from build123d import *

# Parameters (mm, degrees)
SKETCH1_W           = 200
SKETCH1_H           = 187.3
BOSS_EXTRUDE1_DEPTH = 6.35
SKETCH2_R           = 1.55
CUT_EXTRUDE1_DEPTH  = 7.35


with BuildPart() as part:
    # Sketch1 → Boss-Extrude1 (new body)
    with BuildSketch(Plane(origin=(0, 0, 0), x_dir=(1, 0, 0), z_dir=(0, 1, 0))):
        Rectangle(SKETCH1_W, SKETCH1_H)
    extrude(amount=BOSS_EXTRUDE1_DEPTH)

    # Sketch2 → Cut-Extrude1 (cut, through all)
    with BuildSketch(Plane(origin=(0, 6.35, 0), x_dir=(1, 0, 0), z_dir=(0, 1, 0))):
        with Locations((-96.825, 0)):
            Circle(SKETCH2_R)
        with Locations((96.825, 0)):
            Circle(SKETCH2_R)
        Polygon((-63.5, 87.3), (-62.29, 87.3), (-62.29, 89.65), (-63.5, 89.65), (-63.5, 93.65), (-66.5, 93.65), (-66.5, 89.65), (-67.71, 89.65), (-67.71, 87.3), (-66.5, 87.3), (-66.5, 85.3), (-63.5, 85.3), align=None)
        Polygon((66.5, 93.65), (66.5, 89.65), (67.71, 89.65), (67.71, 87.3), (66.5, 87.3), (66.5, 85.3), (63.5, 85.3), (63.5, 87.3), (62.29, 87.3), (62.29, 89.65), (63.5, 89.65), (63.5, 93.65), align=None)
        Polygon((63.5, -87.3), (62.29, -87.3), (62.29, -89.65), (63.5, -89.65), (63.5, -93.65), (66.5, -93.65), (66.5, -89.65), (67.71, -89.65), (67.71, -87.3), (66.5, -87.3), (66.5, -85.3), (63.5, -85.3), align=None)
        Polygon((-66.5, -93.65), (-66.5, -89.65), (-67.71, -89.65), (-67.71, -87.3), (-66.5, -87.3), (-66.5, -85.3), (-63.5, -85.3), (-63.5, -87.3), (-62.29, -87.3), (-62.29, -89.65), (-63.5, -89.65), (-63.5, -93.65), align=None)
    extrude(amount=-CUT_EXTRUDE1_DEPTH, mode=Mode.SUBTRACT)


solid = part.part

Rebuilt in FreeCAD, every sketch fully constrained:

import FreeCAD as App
import Part
import Sketcher

V = App.Vector

doc = App.newDocument("Part")
body = doc.addObject("PartDesign::Body", "Body")

# Sketch on XZ plane
sketch1 = doc.addObject("Sketcher::SketchObject", "Sketch")
body.addObject(sketch1)
sketch1.AttachmentSupport = (doc.XZ_Plane, [""])
sketch1.MapMode = "FlatFace"
sketch1.addGeometry(Part.LineSegment(V(-100, -93.65, 0), V(-100, 93.65, 0)), False)
sketch1.addGeometry(Part.LineSegment(V(-100, 93.65, 0), V(100, 93.65, 0)), False)
sketch1.addGeometry(Part.LineSegment(V(100, 93.65, 0), V(100, -93.65, 0)), False)
sketch1.addGeometry(Part.LineSegment(V(100, -93.65, 0), V(-100, -93.65, 0)), False)
sketch1.addConstraint(Sketcher.Constraint("Coincident", 0, 2, 1, 1))
sketch1.addConstraint(Sketcher.Constraint("Coincident", 1, 2, 2, 1))
sketch1.addConstraint(Sketcher.Constraint("Coincident", 2, 2, 3, 1))
sketch1.addConstraint(Sketcher.Constraint("Coincident", 3, 2, 0, 1))
sketch1.addConstraint(Sketcher.Constraint("Vertical", 0))
sketch1.addConstraint(Sketcher.Constraint("Horizontal", 1))
sketch1.addConstraint(Sketcher.Constraint("Vertical", 2))
sketch1.addConstraint(Sketcher.Constraint("Horizontal", 3))
sketch1.addConstraint(Sketcher.Constraint("Symmetric", 0, 2, 2, 2, -1, 1))
sketch1.addConstraint(Sketcher.Constraint("DistanceX", 1, 1, 1, 2, 200.0))
sketch1.addConstraint(Sketcher.Constraint("DistanceY", 0, 1, 0, 2, 187.3))
pad1 = doc.addObject("PartDesign::Pad", "Pad")
body.addObject(pad1)
pad1.Profile = sketch1
pad1.Length = 6.35
pad1.Reversed = True

# Sketch on XZ plane
sketch2 = doc.addObject("Sketcher::SketchObject", "Sketch001")
body.addObject(sketch2)
sketch2.AttachmentSupport = (doc.XZ_Plane, [""])
sketch2.MapMode = "FlatFace"
sketch2.AttachmentOffset = App.Placement(V(0, 0, -6.35), App.Rotation())
sketch2.addGeometry(Part.Circle(V(-96.825, 0, 0), V(0, 0, 1), 1.55), False)
sketch2.addGeometry(Part.Circle(V(96.825, 0, 0), V(0, 0, 1), 1.55), False)
sketch2.addGeometry(Part.LineSegment(V(-63.5, -87.3, 0), V(-62.29, -87.3, 0)), False)
sketch2.addGeometry(Part.LineSegment(V(-62.29, -87.3, 0), V(-62.29, -89.65, 0)), False)
sketch2.addGeometry(Part.LineSegment(V(-62.29, -89.65, 0), V(-63.5, -89.65, 0)), False)
sketch2.addGeometry(Part.LineSegment(V(-63.5, -89.65, 0), V(-63.5, -93.65, 0)), False)
sketch2.addGeometry(Part.LineSegment(V(-63.5, -93.65, 0), V(-66.5, -93.65, 0)), False)
sketch2.addGeometry(Part.LineSegment(V(-66.5, -93.65, 0), V(-66.5, -89.65, 0)), False)
sketch2.addGeometry(Part.LineSegment(V(-66.5, -89.65, 0), V(-67.71, -89.65, 0)), False)
sketch2.addGeometry(Part.LineSegment(V(-67.71, -89.65, 0), V(-67.71, -87.3, 0)), False)
sketch2.addGeometry(Part.LineSegment(V(-67.71, -87.3, 0), V(-66.5, -87.3, 0)), False)
sketch2.addGeometry(Part.LineSegment(V(-66.5, -87.3, 0), V(-66.5, -85.3, 0)), False)
sketch2.addGeometry(Part.LineSegment(V(-66.5, -85.3, 0), V(-63.5, -85.3, 0)), False)
sketch2.addGeometry(Part.LineSegment(V(-63.5, -85.3, 0), V(-63.5, -87.3, 0)), False)
sketch2.addGeometry(Part.LineSegment(V(66.5, -89.65, 0), V(66.5, -93.65, 0)), False)
sketch2.addGeometry(Part.LineSegment(V(66.5, -93.65, 0), V(63.5, -93.65, 0)), False)
sketch2.addGeometry(Part.LineSegment(V(63.5, -93.65, 0), V(63.5, -89.65, 0)), False)
sketch2.addGeometry(Part.LineSegment(V(63.5, -89.65, 0), V(62.29, -89.65, 0)), False)
sketch2.addGeometry(Part.LineSegment(V(62.29, -89.65, 0), V(62.29, -87.3, 0)), False)
sketch2.addGeometry(Part.LineSegment(V(62.29, -87.3, 0), V(63.5, -87.3, 0)), False)
sketch2.addGeometry(Part.LineSegment(V(63.5, -87.3, 0), V(63.5, -85.3, 0)), False)
sketch2.addGeometry(Part.LineSegment(V(63.5, -85.3, 0), V(66.5, -85.3, 0)), False)
sketch2.addGeometry(Part.LineSegment(V(66.5, -85.3, 0), V(66.5, -87.3, 0)), False)
sketch2.addGeometry(Part.LineSegment(V(66.5, -87.3, 0), V(67.71, -87.3, 0)), False)
sketch2.addGeometry(Part.LineSegment(V(67.71, -87.3, 0), V(67.71, -89.65, 0)), False)
sketch2.addGeometry(Part.LineSegment(V(67.71, -89.65, 0), V(66.5, -89.65, 0)), False)
sketch2.addGeometry(Part.LineSegment(V(63.5, 87.3, 0), V(62.29, 87.3, 0)), False)
sketch2.addGeometry(Part.LineSegment(V(62.29, 87.3, 0), V(62.29, 89.65, 0)), False)
sketch2.addGeometry(Part.LineSegment(V(62.29, 89.65, 0), V(63.5, 89.65, 0)), False)
sketch2.addGeometry(Part.LineSegment(V(63.5, 89.65, 0), V(63.5, 93.65, 0)), False)
sketch2.addGeometry(Part.LineSegment(V(63.5, 93.65, 0), V(66.5, 93.65, 0)), False)
sketch2.addGeometry(Part.LineSegment(V(66.5, 93.65, 0), V(66.5, 89.65, 0)), False)
sketch2.addGeometry(Part.LineSegment(V(66.5, 89.65, 0), V(67.71, 89.65, 0)), False)
sketch2.addGeometry(Part.LineSegment(V(67.71, 89.65, 0), V(67.71, 87.3, 0)), False)
sketch2.addGeometry(Part.LineSegment(V(67.71, 87.3, 0), V(66.5, 87.3, 0)), False)
sketch2.addGeometry(Part.LineSegment(V(66.5, 87.3, 0), V(66.5, 85.3, 0)), False)
sketch2.addGeometry(Part.LineSegment(V(66.5, 85.3, 0), V(63.5, 85.3, 0)), False)
sketch2.addGeometry(Part.LineSegment(V(63.5, 85.3, 0), V(63.5, 87.3, 0)), False)
sketch2.addGeometry(Part.LineSegment(V(-66.5, 89.65, 0), V(-66.5, 93.65, 0)), False)
sketch2.addGeometry(Part.LineSegment(V(-66.5, 93.65, 0), V(-63.5, 93.65, 0)), False)
sketch2.addGeometry(Part.LineSegment(V(-63.5, 93.65, 0), V(-63.5, 89.65, 0)), False)
sketch2.addGeometry(Part.LineSegment(V(-63.5, 89.65, 0), V(-62.29, 89.65, 0)), False)
sketch2.addGeometry(Part.LineSegment(V(-62.29, 89.65, 0), V(-62.29, 87.3, 0)), False)
sketch2.addGeometry(Part.LineSegment(V(-62.29, 87.3, 0), V(-63.5, 87.3, 0)), False)
sketch2.addGeometry(Part.LineSegment(V(-63.5, 87.3, 0), V(-63.5, 85.3, 0)), False)
sketch2.addGeometry(Part.LineSegment(V(-63.5, 85.3, 0), V(-66.5, 85.3, 0)), False)
sketch2.addGeometry(Part.LineSegment(V(-66.5, 85.3, 0), V(-66.5, 87.3, 0)), False)
sketch2.addGeometry(Part.LineSegment(V(-66.5, 87.3, 0), V(-67.71, 87.3, 0)), False)
sketch2.addGeometry(Part.LineSegment(V(-67.71, 87.3, 0), V(-67.71, 89.65, 0)), False)
sketch2.addGeometry(Part.LineSegment(V(-67.71, 89.65, 0), V(-66.5, 89.65, 0)), False)
sketch2.addConstraint(Sketcher.Constraint("Coincident", 2, 2, 3, 1))
sketch2.addConstraint(Sketcher.Constraint("Coincident", 3, 2, 4, 1))
sketch2.addConstraint(Sketcher.Constraint("Coincident", 4, 2, 5, 1))
sketch2.addConstraint(Sketcher.Constraint("Coincident", 5, 2, 6, 1))
sketch2.addConstraint(Sketcher.Constraint("Coincident", 6, 2, 7, 1))
sketch2.addConstraint(Sketcher.Constraint("Coincident", 7, 2, 8, 1))
sketch2.addConstraint(Sketcher.Constraint("Coincident", 8, 2, 9, 1))
sketch2.addConstraint(Sketcher.Constraint("Coincident", 9, 2, 10, 1))
sketch2.addConstraint(Sketcher.Constraint("Coincident", 10, 2, 11, 1))
sketch2.addConstraint(Sketcher.Constraint("Coincident", 11, 2, 12, 1))
sketch2.addConstraint(Sketcher.Constraint("Coincident", 12, 2, 13, 1))
sketch2.addConstraint(Sketcher.Constraint("Coincident", 13, 2, 2, 1))
sketch2.addConstraint(Sketcher.Constraint("Coincident", 14, 2, 15, 1))
sketch2.addConstraint(Sketcher.Constraint("Coincident", 15, 2, 16, 1))
sketch2.addConstraint(Sketcher.Constraint("Coincident", 16, 2, 17, 1))
sketch2.addConstraint(Sketcher.Constraint("Coincident", 17, 2, 18, 1))
sketch2.addConstraint(Sketcher.Constraint("Coincident", 18, 2, 19, 1))
sketch2.addConstraint(Sketcher.Constraint("Coincident", 19, 2, 20, 1))
sketch2.addConstraint(Sketcher.Constraint("Coincident", 20, 2, 21, 1))
sketch2.addConstraint(Sketcher.Constraint("Coincident", 21, 2, 22, 1))
sketch2.addConstraint(Sketcher.Constraint("Coincident", 22, 2, 23, 1))
sketch2.addConstraint(Sketcher.Constraint("Coincident", 23, 2, 24, 1))
sketch2.addConstraint(Sketcher.Constraint("Coincident", 24, 2, 25, 1))
sketch2.addConstraint(Sketcher.Constraint("Coincident", 25, 2, 14, 1))
sketch2.addConstraint(Sketcher.Constraint("Coincident", 26, 2, 27, 1))
sketch2.addConstraint(Sketcher.Constraint("Coincident", 27, 2, 28, 1))
sketch2.addConstraint(Sketcher.Constraint("Coincident", 28, 2, 29, 1))
sketch2.addConstraint(Sketcher.Constraint("Coincident", 29, 2, 30, 1))
sketch2.addConstraint(Sketcher.Constraint("Coincident", 30, 2, 31, 1))
sketch2.addConstraint(Sketcher.Constraint("Coincident", 31, 2, 32, 1))
sketch2.addConstraint(Sketcher.Constraint("Coincident", 32, 2, 33, 1))
sketch2.addConstraint(Sketcher.Constraint("Coincident", 33, 2, 34, 1))
sketch2.addConstraint(Sketcher.Constraint("Coincident", 34, 2, 35, 1))
sketch2.addConstraint(Sketcher.Constraint("Coincident", 35, 2, 36, 1))
sketch2.addConstraint(Sketcher.Constraint("Coincident", 36, 2, 37, 1))
sketch2.addConstraint(Sketcher.Constraint("Coincident", 37, 2, 26, 1))
sketch2.addConstraint(Sketcher.Constraint("Coincident", 38, 2, 39, 1))
sketch2.addConstraint(Sketcher.Constraint("Coincident", 39, 2, 40, 1))
sketch2.addConstraint(Sketcher.Constraint("Coincident", 40, 2, 41, 1))
sketch2.addConstraint(Sketcher.Constraint("Coincident", 41, 2, 42, 1))
sketch2.addConstraint(Sketcher.Constraint("Coincident", 42, 2, 43, 1))
sketch2.addConstraint(Sketcher.Constraint("Coincident", 43, 2, 44, 1))
sketch2.addConstraint(Sketcher.Constraint("Coincident", 44, 2, 45, 1))
sketch2.addConstraint(Sketcher.Constraint("Coincident", 45, 2, 46, 1))
sketch2.addConstraint(Sketcher.Constraint("Coincident", 46, 2, 47, 1))
sketch2.addConstraint(Sketcher.Constraint("Coincident", 47, 2, 48, 1))
sketch2.addConstraint(Sketcher.Constraint("Coincident", 48, 2, 49, 1))
sketch2.addConstraint(Sketcher.Constraint("Coincident", 49, 2, 38, 1))
sketch2.addConstraint(Sketcher.Constraint("Horizontal", 2))
sketch2.addConstraint(Sketcher.Constraint("Vertical", 3))
sketch2.addConstraint(Sketcher.Constraint("Horizontal", 4))
sketch2.addConstraint(Sketcher.Constraint("Vertical", 5))
sketch2.addConstraint(Sketcher.Constraint("Horizontal", 6))
sketch2.addConstraint(Sketcher.Constraint("Vertical", 7))
sketch2.addConstraint(Sketcher.Constraint("Horizontal", 8))
sketch2.addConstraint(Sketcher.Constraint("Vertical", 9))
sketch2.addConstraint(Sketcher.Constraint("Horizontal", 10))
sketch2.addConstraint(Sketcher.Constraint("Vertical", 11))
sketch2.addConstraint(Sketcher.Constraint("Horizontal", 12))
sketch2.addConstraint(Sketcher.Constraint("Vertical", 13))
sketch2.addConstraint(Sketcher.Constraint("Vertical", 14))
sketch2.addConstraint(Sketcher.Constraint("Horizontal", 15))
sketch2.addConstraint(Sketcher.Constraint("Vertical", 16))
sketch2.addConstraint(Sketcher.Constraint("Horizontal", 17))
sketch2.addConstraint(Sketcher.Constraint("Vertical", 18))
sketch2.addConstraint(Sketcher.Constraint("Horizontal", 19))
sketch2.addConstraint(Sketcher.Constraint("Vertical", 20))
sketch2.addConstraint(Sketcher.Constraint("Horizontal", 21))
sketch2.addConstraint(Sketcher.Constraint("Vertical", 22))
sketch2.addConstraint(Sketcher.Constraint("Horizontal", 23))
sketch2.addConstraint(Sketcher.Constraint("Vertical", 24))
sketch2.addConstraint(Sketcher.Constraint("Horizontal", 25))
sketch2.addConstraint(Sketcher.Constraint("Horizontal", 26))
sketch2.addConstraint(Sketcher.Constraint("Vertical", 27))
sketch2.addConstraint(Sketcher.Constraint("Horizontal", 28))
sketch2.addConstraint(Sketcher.Constraint("Vertical", 29))
sketch2.addConstraint(Sketcher.Constraint("Horizontal", 30))
sketch2.addConstraint(Sketcher.Constraint("Vertical", 31))
sketch2.addConstraint(Sketcher.Constraint("Horizontal", 32))
sketch2.addConstraint(Sketcher.Constraint("Vertical", 33))
sketch2.addConstraint(Sketcher.Constraint("Horizontal", 34))
sketch2.addConstraint(Sketcher.Constraint("Vertical", 35))
sketch2.addConstraint(Sketcher.Constraint("Horizontal", 36))
sketch2.addConstraint(Sketcher.Constraint("Vertical", 37))
sketch2.addConstraint(Sketcher.Constraint("Vertical", 38))
sketch2.addConstraint(Sketcher.Constraint("Horizontal", 39))
sketch2.addConstraint(Sketcher.Constraint("Vertical", 40))
sketch2.addConstraint(Sketcher.Constraint("Horizontal", 41))
sketch2.addConstraint(Sketcher.Constraint("Vertical", 42))
sketch2.addConstraint(Sketcher.Constraint("Horizontal", 43))
sketch2.addConstraint(Sketcher.Constraint("Vertical", 44))
sketch2.addConstraint(Sketcher.Constraint("Horizontal", 45))
sketch2.addConstraint(Sketcher.Constraint("Vertical", 46))
sketch2.addConstraint(Sketcher.Constraint("Horizontal", 47))
sketch2.addConstraint(Sketcher.Constraint("Vertical", 48))
sketch2.addConstraint(Sketcher.Constraint("Horizontal", 49))
sketch2.addConstraint(Sketcher.Constraint("Equal", 0, 1))
sketch2.addConstraint(Sketcher.Constraint("Symmetric", 0, 3, 1, 3, -1, 1))
sketch2.addConstraint(Sketcher.Constraint("Symmetric", 2, 2, 26, 2, -1, 1))
sketch2.addConstraint(Sketcher.Constraint("Symmetric", 4, 2, 28, 2, -1, 1))
sketch2.addConstraint(Sketcher.Constraint("Symmetric", 6, 2, 30, 2, -1, 1))
sketch2.addConstraint(Sketcher.Constraint("Symmetric", 8, 2, 32, 2, -1, 1))
sketch2.addConstraint(Sketcher.Constraint("Symmetric", 10, 2, 34, 2, -1, 1))
sketch2.addConstraint(Sketcher.Constraint("Symmetric", 12, 2, 36, 2, -1, 1))
sketch2.addConstraint(Sketcher.Constraint("Symmetric", 14, 2, 38, 2, -1, 1))
sketch2.addConstraint(Sketcher.Constraint("Symmetric", 16, 2, 40, 2, -1, 1))
sketch2.addConstraint(Sketcher.Constraint("Symmetric", 18, 2, 42, 2, -1, 1))
sketch2.addConstraint(Sketcher.Constraint("Symmetric", 20, 2, 44, 2, -1, 1))
sketch2.addConstraint(Sketcher.Constraint("Symmetric", 22, 2, 46, 2, -1, 1))
sketch2.addConstraint(Sketcher.Constraint("Symmetric", 24, 2, 48, 2, -1, 1))
sketch2.addConstraint(Sketcher.Constraint("Symmetric", 6, 2, 14, 2, -2))
sketch2.addConstraint(Sketcher.Constraint("Symmetric", 4, 2, 16, 2, -2))
sketch2.addConstraint(Sketcher.Constraint("Symmetric", 2, 2, 18, 2, -2))
sketch2.addConstraint(Sketcher.Constraint("Symmetric", 12, 2, 20, 2, -2))
sketch2.addConstraint(Sketcher.Constraint("Symmetric", 10, 2, 22, 2, -2))
sketch2.addConstraint(Sketcher.Constraint("Symmetric", 8, 2, 24, 2, -2))
sketch2.addConstraint(Sketcher.Constraint("PointOnObject", 0, 3, -1))
sketch2.addConstraint(Sketcher.Constraint("Horizontal", 4, 2, 7, 2))
sketch2.addConstraint(Sketcher.Constraint("Horizontal", 2, 2, 9, 2))
sketch2.addConstraint(Sketcher.Constraint("Vertical", 7, 2, 10, 2))
sketch2.addConstraint(Sketcher.Constraint("Vertical", 5, 2, 12, 2))
sketch2.addConstraint(Sketcher.Constraint("Equal", 4, 8))
sketch2.addConstraint(Sketcher.Constraint("Diameter", 0, 3.1))
sketch2.addConstraint(Sketcher.Constraint("DistanceX", 6, 2, 6, 1, 3.0))
sketch2.addConstraint(Sketcher.Constraint("DistanceY", 5, 2, 5, 1, 4.0))
sketch2.addConstraint(Sketcher.Constraint("DistanceY", 11, 1, 11, 2, 2.0))
sketch2.addConstraint(Sketcher.Constraint("DistanceX", 5, 2, 14, 2, 130.0))
sketch2.addConstraint(Sketcher.Constraint("DistanceX", 2, 1, 2, 2, 1.21))
sketch2.addConstraint(Sketcher.Constraint("DistanceY", 3, 2, 3, 1, 2.35))
sketch2.addConstraint(Sketcher.Constraint("DistanceY", 2, 2, -1, 1, 87.3))
sketch2.addConstraint(Sketcher.Constraint("DistanceX", 0, 3, 1, 3, 193.65))
pocket1 = doc.addObject("PartDesign::Pocket", "Pocket")
body.addObject(pocket1)
pocket1.Profile = sketch2
pocket1.Type = "ThroughAll"
pocket1.Reversed = True

doc.recompute()
